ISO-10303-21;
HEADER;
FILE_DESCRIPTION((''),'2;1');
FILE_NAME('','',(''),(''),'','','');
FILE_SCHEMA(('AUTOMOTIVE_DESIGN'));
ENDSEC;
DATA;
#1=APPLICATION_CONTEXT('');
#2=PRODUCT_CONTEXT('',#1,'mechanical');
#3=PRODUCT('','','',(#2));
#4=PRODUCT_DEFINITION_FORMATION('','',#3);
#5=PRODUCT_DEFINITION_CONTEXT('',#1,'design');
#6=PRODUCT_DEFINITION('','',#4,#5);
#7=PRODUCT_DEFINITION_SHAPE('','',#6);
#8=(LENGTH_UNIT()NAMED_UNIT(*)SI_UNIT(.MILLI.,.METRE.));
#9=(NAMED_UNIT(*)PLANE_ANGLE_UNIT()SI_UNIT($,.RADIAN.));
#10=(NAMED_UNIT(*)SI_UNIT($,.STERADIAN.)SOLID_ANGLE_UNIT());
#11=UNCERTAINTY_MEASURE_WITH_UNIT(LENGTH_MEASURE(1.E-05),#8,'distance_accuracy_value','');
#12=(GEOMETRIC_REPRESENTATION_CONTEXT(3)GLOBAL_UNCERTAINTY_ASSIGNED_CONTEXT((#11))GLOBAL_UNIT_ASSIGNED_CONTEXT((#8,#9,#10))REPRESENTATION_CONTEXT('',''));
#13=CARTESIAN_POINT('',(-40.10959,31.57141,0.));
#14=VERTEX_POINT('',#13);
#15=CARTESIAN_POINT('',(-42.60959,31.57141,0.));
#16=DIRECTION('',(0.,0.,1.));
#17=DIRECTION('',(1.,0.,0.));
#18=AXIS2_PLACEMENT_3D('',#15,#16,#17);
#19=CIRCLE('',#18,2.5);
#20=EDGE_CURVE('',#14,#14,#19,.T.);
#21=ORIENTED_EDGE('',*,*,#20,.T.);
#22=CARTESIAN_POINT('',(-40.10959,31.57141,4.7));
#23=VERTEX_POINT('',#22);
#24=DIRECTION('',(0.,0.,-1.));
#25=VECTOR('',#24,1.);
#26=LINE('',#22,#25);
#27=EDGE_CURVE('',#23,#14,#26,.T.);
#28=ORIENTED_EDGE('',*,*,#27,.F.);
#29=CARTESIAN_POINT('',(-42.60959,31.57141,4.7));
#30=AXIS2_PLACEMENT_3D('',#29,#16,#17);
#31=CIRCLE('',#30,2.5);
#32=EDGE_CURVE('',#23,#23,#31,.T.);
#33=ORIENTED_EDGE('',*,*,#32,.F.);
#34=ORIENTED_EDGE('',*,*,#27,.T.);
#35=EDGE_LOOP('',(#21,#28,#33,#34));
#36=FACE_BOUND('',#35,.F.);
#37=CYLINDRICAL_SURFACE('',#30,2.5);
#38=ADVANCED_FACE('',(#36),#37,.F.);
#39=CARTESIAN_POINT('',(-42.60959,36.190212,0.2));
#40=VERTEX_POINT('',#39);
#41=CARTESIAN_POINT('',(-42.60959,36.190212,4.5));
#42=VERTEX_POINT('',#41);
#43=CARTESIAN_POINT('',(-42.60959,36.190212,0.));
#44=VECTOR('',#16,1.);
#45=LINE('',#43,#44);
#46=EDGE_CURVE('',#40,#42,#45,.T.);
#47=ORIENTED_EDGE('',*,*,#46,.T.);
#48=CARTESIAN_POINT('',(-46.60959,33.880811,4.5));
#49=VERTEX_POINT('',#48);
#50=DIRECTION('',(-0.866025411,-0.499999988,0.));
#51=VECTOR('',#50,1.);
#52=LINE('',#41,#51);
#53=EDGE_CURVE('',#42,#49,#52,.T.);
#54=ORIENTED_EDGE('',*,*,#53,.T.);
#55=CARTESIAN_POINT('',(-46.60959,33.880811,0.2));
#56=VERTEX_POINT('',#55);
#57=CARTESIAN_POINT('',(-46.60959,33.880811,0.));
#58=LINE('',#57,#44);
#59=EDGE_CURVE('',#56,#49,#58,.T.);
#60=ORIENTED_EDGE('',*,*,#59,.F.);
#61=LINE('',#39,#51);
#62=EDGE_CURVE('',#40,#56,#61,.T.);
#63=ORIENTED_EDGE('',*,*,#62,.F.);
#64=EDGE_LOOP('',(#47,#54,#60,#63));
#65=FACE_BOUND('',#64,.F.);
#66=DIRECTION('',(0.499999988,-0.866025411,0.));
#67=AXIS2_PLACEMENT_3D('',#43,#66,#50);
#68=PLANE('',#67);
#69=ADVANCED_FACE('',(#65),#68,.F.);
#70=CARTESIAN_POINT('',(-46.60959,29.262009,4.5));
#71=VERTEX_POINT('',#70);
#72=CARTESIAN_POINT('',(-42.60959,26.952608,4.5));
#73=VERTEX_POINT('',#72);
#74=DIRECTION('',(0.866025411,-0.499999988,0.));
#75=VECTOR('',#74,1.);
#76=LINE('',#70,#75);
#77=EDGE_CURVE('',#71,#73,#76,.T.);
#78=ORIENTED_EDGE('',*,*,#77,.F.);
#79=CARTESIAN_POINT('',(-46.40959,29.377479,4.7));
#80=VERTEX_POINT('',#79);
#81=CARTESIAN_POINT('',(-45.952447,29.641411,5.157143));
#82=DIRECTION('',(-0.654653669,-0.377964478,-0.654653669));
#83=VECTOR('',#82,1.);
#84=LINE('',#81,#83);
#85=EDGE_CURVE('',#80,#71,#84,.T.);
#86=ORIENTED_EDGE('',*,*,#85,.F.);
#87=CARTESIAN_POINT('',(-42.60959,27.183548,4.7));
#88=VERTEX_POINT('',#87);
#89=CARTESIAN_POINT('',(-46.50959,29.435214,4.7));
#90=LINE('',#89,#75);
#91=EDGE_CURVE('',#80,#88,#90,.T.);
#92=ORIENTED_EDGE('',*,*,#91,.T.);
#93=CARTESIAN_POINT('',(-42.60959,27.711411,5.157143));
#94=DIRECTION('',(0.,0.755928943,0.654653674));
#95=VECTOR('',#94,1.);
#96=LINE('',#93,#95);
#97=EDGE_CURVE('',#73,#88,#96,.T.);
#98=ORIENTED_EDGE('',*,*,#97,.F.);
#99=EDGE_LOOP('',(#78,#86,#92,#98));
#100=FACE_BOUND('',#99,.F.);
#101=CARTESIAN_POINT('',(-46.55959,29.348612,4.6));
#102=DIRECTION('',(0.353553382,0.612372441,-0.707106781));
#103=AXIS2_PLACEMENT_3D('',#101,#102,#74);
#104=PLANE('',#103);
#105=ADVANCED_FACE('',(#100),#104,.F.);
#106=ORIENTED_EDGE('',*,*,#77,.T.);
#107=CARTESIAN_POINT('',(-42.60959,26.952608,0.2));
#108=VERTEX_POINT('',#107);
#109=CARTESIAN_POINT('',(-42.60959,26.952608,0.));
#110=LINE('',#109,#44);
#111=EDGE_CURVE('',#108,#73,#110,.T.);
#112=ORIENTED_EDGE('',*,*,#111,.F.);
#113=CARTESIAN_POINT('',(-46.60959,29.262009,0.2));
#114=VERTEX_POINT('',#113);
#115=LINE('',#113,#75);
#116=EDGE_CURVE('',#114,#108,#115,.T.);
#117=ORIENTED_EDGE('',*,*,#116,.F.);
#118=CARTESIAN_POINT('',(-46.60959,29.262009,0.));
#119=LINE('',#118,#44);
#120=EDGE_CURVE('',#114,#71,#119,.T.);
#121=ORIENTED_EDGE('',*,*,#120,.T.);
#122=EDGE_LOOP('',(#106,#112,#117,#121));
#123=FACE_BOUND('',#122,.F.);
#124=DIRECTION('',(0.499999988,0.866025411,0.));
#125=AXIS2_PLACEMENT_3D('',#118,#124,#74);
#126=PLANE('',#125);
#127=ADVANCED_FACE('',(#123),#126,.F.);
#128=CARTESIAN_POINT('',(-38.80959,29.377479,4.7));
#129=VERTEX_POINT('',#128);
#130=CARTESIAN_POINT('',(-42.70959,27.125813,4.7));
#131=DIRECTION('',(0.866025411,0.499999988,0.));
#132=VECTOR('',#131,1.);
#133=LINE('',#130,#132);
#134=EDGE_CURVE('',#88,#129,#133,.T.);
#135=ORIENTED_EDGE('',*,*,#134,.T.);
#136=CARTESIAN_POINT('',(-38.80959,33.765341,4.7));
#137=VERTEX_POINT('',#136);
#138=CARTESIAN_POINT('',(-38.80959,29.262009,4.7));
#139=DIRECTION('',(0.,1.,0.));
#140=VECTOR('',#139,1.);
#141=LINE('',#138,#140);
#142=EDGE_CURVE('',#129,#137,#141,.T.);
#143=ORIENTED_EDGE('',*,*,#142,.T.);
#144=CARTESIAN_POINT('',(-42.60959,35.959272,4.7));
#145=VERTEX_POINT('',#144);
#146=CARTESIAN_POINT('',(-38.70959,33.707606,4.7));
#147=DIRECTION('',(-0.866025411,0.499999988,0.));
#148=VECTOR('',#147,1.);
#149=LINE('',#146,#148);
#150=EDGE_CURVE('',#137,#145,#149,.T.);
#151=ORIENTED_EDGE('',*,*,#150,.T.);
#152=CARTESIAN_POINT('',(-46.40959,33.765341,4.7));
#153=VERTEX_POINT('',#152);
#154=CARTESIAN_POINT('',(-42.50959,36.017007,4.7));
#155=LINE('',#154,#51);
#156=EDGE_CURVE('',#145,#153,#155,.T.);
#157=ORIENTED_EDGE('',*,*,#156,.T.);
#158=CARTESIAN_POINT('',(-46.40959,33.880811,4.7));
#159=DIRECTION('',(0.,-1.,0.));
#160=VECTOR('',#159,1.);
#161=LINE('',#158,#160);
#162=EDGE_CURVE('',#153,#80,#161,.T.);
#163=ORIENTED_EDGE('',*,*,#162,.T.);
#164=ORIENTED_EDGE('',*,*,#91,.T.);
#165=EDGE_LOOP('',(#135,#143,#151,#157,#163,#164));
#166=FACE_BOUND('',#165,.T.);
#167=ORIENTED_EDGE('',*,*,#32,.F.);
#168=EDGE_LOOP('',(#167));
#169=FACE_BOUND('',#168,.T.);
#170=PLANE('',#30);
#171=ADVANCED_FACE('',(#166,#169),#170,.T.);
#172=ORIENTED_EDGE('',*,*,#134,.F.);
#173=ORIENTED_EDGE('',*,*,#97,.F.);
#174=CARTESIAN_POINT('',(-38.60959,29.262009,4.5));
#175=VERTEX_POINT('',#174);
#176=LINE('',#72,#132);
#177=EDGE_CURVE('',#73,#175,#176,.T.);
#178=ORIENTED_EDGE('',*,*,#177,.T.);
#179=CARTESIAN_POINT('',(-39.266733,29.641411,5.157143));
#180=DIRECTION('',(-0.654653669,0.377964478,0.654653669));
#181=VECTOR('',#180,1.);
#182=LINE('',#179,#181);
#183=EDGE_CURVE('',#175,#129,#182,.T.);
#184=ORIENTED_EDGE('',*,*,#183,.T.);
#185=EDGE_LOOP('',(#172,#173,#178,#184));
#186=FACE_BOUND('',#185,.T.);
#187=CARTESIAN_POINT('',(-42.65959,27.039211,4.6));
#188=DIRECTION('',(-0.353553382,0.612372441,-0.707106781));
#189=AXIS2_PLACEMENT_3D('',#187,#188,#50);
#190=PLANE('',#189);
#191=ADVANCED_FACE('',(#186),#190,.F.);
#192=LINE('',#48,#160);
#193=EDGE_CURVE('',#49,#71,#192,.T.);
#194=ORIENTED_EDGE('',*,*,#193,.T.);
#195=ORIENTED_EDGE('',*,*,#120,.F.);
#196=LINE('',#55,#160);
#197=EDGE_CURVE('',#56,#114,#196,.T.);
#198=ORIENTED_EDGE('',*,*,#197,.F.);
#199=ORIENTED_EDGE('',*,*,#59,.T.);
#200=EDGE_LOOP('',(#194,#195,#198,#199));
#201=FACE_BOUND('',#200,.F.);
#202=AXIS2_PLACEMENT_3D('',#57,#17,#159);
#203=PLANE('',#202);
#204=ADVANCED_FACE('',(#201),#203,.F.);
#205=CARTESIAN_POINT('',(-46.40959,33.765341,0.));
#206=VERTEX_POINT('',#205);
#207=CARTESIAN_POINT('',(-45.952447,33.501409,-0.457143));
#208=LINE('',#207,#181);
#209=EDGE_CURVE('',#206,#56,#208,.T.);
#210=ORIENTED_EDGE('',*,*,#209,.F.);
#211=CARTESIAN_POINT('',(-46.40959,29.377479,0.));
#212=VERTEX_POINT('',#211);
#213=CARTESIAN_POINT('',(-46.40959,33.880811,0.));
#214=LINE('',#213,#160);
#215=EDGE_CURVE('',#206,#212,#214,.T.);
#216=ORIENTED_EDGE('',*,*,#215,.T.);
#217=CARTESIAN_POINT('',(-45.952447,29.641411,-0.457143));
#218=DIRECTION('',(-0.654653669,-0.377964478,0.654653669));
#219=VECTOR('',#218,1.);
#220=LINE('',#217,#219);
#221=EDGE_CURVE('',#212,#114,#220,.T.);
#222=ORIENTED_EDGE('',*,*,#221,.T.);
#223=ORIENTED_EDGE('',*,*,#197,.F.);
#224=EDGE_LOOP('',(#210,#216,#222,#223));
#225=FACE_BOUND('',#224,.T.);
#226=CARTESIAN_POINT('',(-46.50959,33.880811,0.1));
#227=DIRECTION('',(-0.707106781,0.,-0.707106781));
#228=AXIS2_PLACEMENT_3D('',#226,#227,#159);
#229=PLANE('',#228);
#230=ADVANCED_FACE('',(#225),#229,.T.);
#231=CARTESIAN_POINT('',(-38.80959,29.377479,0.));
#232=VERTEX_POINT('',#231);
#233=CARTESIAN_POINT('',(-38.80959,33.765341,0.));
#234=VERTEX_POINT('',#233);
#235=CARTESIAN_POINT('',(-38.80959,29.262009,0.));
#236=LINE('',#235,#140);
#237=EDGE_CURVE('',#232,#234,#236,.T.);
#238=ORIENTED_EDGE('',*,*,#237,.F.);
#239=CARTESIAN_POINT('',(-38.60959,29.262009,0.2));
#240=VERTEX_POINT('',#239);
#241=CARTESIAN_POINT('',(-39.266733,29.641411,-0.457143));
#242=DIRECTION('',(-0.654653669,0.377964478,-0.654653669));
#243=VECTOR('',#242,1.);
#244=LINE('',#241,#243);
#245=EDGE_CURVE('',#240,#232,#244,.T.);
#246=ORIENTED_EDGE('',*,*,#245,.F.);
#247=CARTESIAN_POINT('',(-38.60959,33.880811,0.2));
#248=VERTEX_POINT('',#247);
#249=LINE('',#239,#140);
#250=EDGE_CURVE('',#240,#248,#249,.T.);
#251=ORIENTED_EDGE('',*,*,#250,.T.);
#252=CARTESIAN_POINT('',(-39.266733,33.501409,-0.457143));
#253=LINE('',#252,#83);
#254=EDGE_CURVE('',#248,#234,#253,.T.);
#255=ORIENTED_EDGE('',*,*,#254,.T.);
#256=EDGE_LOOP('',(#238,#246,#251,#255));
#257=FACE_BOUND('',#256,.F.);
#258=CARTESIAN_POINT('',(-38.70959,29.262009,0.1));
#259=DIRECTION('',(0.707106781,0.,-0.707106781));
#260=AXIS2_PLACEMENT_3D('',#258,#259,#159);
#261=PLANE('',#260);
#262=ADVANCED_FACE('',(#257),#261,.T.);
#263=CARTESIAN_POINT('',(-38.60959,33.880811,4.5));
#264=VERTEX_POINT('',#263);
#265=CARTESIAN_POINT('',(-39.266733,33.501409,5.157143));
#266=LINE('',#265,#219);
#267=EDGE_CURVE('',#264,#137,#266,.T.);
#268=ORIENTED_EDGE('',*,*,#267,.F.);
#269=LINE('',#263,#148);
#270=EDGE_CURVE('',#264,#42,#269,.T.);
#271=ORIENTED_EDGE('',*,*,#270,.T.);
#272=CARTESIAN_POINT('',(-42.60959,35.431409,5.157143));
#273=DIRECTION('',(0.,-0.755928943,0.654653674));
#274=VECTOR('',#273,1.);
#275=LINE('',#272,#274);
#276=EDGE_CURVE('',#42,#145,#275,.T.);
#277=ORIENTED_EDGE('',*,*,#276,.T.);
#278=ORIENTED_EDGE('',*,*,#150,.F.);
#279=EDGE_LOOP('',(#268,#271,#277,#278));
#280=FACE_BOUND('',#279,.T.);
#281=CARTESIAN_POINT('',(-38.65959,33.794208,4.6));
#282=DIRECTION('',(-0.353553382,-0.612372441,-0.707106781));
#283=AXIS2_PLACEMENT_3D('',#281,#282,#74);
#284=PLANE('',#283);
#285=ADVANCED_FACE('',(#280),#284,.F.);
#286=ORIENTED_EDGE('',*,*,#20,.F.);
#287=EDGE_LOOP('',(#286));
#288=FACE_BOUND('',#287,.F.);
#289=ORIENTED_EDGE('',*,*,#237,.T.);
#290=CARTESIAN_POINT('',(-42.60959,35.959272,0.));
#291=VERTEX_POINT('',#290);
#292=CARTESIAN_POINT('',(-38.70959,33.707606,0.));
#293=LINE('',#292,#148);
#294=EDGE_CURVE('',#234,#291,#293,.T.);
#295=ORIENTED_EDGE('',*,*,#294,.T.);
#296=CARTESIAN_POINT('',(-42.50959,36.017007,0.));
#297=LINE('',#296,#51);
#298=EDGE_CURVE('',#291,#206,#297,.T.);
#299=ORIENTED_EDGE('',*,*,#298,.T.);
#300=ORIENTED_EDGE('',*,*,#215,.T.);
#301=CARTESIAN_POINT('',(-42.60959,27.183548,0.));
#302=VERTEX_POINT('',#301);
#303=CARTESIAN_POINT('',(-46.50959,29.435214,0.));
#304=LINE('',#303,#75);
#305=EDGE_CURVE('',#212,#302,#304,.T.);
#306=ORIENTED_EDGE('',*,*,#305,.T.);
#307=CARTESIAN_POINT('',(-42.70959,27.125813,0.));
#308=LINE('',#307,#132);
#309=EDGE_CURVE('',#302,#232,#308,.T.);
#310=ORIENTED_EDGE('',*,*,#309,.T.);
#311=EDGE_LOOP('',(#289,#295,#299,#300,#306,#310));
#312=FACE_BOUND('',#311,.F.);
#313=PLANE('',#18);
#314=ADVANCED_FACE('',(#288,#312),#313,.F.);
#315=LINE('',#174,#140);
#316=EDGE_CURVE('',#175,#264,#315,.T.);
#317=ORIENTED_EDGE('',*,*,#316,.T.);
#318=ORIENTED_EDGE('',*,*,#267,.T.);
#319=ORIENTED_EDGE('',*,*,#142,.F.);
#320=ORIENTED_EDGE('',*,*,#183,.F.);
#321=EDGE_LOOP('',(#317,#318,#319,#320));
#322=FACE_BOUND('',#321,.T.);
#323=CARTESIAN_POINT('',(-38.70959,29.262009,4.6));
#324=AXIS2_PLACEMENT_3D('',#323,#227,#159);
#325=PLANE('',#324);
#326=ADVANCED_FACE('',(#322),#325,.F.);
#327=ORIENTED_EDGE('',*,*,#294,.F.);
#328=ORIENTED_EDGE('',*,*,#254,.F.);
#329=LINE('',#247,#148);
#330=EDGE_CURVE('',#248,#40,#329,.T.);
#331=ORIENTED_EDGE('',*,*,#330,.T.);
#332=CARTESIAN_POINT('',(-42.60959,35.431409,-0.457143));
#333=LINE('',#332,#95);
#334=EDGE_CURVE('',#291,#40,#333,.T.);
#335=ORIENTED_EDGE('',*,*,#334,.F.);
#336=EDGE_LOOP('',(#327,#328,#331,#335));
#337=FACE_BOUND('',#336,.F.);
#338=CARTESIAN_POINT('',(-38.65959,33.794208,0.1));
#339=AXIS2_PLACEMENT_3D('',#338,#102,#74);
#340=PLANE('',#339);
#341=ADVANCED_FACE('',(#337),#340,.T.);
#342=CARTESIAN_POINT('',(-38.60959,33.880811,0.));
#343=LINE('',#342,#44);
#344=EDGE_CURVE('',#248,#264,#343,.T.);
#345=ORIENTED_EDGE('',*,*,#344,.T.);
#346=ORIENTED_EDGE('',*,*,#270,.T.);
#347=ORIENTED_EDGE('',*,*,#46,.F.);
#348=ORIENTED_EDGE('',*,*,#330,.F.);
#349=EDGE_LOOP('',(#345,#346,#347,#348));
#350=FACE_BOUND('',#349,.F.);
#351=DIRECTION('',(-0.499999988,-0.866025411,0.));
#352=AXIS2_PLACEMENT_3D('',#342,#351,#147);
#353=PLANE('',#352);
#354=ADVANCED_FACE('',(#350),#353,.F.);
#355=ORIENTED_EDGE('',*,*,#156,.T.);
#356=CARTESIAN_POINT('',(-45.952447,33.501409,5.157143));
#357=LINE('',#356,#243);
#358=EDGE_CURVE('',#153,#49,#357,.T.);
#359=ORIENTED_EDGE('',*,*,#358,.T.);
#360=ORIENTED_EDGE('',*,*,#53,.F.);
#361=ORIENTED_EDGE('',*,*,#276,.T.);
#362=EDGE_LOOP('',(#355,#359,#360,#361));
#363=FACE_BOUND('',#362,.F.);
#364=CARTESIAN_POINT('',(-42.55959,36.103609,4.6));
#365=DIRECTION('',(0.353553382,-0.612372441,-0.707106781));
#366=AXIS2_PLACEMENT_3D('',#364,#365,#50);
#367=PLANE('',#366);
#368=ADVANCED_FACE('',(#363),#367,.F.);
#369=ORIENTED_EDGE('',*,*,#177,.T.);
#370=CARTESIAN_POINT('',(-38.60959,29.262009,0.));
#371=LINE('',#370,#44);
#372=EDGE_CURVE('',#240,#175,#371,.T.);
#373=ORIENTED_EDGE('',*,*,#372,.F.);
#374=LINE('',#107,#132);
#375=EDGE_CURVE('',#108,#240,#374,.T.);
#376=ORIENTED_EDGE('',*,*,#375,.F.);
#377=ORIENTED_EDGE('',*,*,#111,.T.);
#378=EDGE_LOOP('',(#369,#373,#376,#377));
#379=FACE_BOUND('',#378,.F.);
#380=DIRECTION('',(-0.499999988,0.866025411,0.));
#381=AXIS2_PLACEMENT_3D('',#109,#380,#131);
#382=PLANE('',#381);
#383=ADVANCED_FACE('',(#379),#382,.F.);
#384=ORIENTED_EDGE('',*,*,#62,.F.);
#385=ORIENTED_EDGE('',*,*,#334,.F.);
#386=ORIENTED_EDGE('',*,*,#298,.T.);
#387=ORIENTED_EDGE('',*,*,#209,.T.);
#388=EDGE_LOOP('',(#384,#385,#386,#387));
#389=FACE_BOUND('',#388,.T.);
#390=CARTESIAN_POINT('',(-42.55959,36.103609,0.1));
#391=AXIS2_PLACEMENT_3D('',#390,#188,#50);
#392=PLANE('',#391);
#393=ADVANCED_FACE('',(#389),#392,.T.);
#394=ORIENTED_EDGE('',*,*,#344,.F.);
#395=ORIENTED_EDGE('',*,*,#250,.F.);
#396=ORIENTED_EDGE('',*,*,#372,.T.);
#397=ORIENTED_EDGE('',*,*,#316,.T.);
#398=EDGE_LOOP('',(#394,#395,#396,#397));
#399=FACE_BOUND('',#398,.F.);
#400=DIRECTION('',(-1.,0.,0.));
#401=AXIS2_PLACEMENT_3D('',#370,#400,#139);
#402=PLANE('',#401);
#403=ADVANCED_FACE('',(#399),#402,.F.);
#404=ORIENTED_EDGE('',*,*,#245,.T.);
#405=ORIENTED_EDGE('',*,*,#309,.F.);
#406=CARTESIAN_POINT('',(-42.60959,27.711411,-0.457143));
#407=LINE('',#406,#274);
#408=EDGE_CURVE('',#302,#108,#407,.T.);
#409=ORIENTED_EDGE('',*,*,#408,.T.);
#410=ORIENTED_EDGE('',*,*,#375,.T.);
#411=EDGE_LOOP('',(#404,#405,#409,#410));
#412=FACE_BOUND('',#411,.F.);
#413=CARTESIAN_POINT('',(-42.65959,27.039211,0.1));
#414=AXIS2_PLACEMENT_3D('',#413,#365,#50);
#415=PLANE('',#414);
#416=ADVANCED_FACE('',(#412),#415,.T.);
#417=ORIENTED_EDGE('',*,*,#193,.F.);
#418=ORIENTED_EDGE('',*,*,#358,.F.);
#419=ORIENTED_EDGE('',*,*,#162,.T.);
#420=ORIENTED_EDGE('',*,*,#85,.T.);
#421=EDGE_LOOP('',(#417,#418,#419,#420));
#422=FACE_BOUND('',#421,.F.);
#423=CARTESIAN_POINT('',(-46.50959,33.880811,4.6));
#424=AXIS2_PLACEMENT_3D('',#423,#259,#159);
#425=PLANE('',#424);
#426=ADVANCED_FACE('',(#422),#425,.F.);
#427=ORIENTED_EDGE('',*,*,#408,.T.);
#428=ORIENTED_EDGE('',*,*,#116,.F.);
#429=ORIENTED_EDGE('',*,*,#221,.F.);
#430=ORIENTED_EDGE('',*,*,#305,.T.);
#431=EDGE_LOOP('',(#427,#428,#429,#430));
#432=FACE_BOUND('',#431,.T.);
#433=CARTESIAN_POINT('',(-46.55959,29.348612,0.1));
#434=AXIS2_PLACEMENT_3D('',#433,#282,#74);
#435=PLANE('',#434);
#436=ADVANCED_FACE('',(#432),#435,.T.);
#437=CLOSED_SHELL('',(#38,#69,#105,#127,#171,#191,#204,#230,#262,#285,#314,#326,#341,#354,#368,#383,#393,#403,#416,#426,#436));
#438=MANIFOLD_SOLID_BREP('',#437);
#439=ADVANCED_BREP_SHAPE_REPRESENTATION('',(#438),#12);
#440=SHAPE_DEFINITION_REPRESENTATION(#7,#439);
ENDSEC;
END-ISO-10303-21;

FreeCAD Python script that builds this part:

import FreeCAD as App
import Part
import Sketcher

V = App.Vector
Q = App.Units.Quantity


def edges_at(feature, points):
    """Names of the edges that pass closest to the given points."""
    edges = feature.Shape.Edges
    near = lambda p: min(range(len(edges)), key=lambda i: edges[i].distToShape(Part.Vertex(*p))[0])
    return sorted({f"Edge{near(p) + 1}" for p in points})

doc = App.newDocument("Part")
body = doc.addObject("PartDesign::Body", "Body")

# Sketch on XY plane
sketch1 = body.newObject("Sketcher::SketchObject", "Sketch")
sketch1.AttachmentSupport = (doc.getObject("XY_Plane"), [""])
sketch1.MapMode = "FlatFace"
sketch1.addGeometry(Part.LineSegment(V(-38.6, 29.3, 0), V(-38.6, 33.9, 0)), False)
sketch1.addGeometry(Part.LineSegment(V(-38.6, 33.9, 0), V(-42.6, 36.2, 0)), False)
sketch1.addGeometry(Part.LineSegment(V(-42.6, 36.2, 0), V(-46.6, 33.9, 0)), False)
sketch1.addGeometry(Part.LineSegment(V(-46.6, 33.9, 0), V(-46.6, 29.3, 0)), False)
sketch1.addGeometry(Part.LineSegment(V(-46.6, 29.3, 0), V(-42.6, 27, 0)), False)
sketch1.addGeometry(Part.LineSegment(V(-42.6, 27, 0), V(-38.6, 29.3, 0)), False)
sketch1.addConstraint(Sketcher.Constraint("Coincident", 0, 2, 1, 1))
sketch1.addConstraint(Sketcher.Constraint("Coincident", 1, 2, 2, 1))
sketch1.addConstraint(Sketcher.Constraint("Coincident", 2, 2, 3, 1))
sketch1.addConstraint(Sketcher.Constraint("Coincident", 3, 2, 4, 1))
sketch1.addConstraint(Sketcher.Constraint("Coincident", 4, 2, 5, 1))
sketch1.addConstraint(Sketcher.Constraint("Coincident", 5, 2, 0, 1))
sketch1.addConstraint(Sketcher.Constraint("Vertical", 0))
sketch1.addConstraint(Sketcher.Constraint("Vertical", 3))
sketch1.addConstraint(Sketcher.Constraint("Parallel", 1, 4))
sketch1.addConstraint(Sketcher.Constraint("Parallel", 2, 5))
sketch1.addConstraint(Sketcher.Constraint("Horizontal", 0, 2, 2, 2))
sketch1.addConstraint(Sketcher.Constraint("Horizontal", 3, 2, 5, 2))
sketch1.addConstraint(Sketcher.Constraint("Vertical", 1, 2, 4, 2))
sketch1.addConstraint(Sketcher.Constraint("Angle", 1, Q("150.000001 deg")))
sketch1.addConstraint(Sketcher.Constraint("DistanceX", 1, 2, 0, 2, Q("4 mm")))
sketch1.addConstraint(Sketcher.Constraint("DistanceY", 0, 1, 0, 2, Q("4.618802 mm")))
sketch1.addConstraint(Sketcher.Constraint("DistanceX", 0, 2, -1, 1, Q("38.60959 mm")))
sketch1.addConstraint(Sketcher.Constraint("DistanceY", -1, 1, 0, 2, Q("33.880811 mm")))
pad1 = body.newObject("PartDesign::Pad", "Pad")
pad1.Profile = sketch1
pad1.Length = 4.7

# Sketch on XY plane
sketch2 = body.newObject("Sketcher::SketchObject", "Sketch001")
sketch2.AttachmentSupport = (doc.getObject("XY_Plane"), [""])
sketch2.MapMode = "FlatFace"
sketch2.AttachmentOffset = App.Placement(V(0, 0, 4.7), App.Rotation())
sketch2.addGeometry(Part.Circle(V(-42.6, 31.6, 0), V(0, 0, 1), 2.5), False)
sketch2.addConstraint(Sketcher.Constraint("Diameter", 0, Q("5 mm")))
sketch2.addConstraint(Sketcher.Constraint("DistanceX", 0, 3, -1, 1, Q("42.60959 mm")))
sketch2.addConstraint(Sketcher.Constraint("DistanceY", -1, 1, 0, 3, Q("31.57141 mm")))
pocket1 = body.newObject("PartDesign::Pocket", "Pocket")
pocket1.Profile = sketch2
pocket1.Length = 4.7
doc.recompute()

chamfer = body.newObject("PartDesign::Chamfer", "Chamfer")
chamfer.Base = (pocket1, edges_at(pocket1, [
    (-40.61, 28.107, 4.7),
    (-38.61, 31.571, 4.7),
    (-40.61, 35.036, 4.7),
    (-44.61, 35.036, 4.7),
    (-46.61, 31.571, 4.7),
    (-44.61, 28.107, 4.7),
    (-44.61, 28.107, 0),
    (-46.61, 31.571, 0),
    (-44.61, 35.036, 0),
    (-40.61, 35.036, 0),
    (-38.61, 31.571, 0),
    (-40.61, 28.107, 0),
]))
chamfer.Size = 0.2

doc.recompute()
